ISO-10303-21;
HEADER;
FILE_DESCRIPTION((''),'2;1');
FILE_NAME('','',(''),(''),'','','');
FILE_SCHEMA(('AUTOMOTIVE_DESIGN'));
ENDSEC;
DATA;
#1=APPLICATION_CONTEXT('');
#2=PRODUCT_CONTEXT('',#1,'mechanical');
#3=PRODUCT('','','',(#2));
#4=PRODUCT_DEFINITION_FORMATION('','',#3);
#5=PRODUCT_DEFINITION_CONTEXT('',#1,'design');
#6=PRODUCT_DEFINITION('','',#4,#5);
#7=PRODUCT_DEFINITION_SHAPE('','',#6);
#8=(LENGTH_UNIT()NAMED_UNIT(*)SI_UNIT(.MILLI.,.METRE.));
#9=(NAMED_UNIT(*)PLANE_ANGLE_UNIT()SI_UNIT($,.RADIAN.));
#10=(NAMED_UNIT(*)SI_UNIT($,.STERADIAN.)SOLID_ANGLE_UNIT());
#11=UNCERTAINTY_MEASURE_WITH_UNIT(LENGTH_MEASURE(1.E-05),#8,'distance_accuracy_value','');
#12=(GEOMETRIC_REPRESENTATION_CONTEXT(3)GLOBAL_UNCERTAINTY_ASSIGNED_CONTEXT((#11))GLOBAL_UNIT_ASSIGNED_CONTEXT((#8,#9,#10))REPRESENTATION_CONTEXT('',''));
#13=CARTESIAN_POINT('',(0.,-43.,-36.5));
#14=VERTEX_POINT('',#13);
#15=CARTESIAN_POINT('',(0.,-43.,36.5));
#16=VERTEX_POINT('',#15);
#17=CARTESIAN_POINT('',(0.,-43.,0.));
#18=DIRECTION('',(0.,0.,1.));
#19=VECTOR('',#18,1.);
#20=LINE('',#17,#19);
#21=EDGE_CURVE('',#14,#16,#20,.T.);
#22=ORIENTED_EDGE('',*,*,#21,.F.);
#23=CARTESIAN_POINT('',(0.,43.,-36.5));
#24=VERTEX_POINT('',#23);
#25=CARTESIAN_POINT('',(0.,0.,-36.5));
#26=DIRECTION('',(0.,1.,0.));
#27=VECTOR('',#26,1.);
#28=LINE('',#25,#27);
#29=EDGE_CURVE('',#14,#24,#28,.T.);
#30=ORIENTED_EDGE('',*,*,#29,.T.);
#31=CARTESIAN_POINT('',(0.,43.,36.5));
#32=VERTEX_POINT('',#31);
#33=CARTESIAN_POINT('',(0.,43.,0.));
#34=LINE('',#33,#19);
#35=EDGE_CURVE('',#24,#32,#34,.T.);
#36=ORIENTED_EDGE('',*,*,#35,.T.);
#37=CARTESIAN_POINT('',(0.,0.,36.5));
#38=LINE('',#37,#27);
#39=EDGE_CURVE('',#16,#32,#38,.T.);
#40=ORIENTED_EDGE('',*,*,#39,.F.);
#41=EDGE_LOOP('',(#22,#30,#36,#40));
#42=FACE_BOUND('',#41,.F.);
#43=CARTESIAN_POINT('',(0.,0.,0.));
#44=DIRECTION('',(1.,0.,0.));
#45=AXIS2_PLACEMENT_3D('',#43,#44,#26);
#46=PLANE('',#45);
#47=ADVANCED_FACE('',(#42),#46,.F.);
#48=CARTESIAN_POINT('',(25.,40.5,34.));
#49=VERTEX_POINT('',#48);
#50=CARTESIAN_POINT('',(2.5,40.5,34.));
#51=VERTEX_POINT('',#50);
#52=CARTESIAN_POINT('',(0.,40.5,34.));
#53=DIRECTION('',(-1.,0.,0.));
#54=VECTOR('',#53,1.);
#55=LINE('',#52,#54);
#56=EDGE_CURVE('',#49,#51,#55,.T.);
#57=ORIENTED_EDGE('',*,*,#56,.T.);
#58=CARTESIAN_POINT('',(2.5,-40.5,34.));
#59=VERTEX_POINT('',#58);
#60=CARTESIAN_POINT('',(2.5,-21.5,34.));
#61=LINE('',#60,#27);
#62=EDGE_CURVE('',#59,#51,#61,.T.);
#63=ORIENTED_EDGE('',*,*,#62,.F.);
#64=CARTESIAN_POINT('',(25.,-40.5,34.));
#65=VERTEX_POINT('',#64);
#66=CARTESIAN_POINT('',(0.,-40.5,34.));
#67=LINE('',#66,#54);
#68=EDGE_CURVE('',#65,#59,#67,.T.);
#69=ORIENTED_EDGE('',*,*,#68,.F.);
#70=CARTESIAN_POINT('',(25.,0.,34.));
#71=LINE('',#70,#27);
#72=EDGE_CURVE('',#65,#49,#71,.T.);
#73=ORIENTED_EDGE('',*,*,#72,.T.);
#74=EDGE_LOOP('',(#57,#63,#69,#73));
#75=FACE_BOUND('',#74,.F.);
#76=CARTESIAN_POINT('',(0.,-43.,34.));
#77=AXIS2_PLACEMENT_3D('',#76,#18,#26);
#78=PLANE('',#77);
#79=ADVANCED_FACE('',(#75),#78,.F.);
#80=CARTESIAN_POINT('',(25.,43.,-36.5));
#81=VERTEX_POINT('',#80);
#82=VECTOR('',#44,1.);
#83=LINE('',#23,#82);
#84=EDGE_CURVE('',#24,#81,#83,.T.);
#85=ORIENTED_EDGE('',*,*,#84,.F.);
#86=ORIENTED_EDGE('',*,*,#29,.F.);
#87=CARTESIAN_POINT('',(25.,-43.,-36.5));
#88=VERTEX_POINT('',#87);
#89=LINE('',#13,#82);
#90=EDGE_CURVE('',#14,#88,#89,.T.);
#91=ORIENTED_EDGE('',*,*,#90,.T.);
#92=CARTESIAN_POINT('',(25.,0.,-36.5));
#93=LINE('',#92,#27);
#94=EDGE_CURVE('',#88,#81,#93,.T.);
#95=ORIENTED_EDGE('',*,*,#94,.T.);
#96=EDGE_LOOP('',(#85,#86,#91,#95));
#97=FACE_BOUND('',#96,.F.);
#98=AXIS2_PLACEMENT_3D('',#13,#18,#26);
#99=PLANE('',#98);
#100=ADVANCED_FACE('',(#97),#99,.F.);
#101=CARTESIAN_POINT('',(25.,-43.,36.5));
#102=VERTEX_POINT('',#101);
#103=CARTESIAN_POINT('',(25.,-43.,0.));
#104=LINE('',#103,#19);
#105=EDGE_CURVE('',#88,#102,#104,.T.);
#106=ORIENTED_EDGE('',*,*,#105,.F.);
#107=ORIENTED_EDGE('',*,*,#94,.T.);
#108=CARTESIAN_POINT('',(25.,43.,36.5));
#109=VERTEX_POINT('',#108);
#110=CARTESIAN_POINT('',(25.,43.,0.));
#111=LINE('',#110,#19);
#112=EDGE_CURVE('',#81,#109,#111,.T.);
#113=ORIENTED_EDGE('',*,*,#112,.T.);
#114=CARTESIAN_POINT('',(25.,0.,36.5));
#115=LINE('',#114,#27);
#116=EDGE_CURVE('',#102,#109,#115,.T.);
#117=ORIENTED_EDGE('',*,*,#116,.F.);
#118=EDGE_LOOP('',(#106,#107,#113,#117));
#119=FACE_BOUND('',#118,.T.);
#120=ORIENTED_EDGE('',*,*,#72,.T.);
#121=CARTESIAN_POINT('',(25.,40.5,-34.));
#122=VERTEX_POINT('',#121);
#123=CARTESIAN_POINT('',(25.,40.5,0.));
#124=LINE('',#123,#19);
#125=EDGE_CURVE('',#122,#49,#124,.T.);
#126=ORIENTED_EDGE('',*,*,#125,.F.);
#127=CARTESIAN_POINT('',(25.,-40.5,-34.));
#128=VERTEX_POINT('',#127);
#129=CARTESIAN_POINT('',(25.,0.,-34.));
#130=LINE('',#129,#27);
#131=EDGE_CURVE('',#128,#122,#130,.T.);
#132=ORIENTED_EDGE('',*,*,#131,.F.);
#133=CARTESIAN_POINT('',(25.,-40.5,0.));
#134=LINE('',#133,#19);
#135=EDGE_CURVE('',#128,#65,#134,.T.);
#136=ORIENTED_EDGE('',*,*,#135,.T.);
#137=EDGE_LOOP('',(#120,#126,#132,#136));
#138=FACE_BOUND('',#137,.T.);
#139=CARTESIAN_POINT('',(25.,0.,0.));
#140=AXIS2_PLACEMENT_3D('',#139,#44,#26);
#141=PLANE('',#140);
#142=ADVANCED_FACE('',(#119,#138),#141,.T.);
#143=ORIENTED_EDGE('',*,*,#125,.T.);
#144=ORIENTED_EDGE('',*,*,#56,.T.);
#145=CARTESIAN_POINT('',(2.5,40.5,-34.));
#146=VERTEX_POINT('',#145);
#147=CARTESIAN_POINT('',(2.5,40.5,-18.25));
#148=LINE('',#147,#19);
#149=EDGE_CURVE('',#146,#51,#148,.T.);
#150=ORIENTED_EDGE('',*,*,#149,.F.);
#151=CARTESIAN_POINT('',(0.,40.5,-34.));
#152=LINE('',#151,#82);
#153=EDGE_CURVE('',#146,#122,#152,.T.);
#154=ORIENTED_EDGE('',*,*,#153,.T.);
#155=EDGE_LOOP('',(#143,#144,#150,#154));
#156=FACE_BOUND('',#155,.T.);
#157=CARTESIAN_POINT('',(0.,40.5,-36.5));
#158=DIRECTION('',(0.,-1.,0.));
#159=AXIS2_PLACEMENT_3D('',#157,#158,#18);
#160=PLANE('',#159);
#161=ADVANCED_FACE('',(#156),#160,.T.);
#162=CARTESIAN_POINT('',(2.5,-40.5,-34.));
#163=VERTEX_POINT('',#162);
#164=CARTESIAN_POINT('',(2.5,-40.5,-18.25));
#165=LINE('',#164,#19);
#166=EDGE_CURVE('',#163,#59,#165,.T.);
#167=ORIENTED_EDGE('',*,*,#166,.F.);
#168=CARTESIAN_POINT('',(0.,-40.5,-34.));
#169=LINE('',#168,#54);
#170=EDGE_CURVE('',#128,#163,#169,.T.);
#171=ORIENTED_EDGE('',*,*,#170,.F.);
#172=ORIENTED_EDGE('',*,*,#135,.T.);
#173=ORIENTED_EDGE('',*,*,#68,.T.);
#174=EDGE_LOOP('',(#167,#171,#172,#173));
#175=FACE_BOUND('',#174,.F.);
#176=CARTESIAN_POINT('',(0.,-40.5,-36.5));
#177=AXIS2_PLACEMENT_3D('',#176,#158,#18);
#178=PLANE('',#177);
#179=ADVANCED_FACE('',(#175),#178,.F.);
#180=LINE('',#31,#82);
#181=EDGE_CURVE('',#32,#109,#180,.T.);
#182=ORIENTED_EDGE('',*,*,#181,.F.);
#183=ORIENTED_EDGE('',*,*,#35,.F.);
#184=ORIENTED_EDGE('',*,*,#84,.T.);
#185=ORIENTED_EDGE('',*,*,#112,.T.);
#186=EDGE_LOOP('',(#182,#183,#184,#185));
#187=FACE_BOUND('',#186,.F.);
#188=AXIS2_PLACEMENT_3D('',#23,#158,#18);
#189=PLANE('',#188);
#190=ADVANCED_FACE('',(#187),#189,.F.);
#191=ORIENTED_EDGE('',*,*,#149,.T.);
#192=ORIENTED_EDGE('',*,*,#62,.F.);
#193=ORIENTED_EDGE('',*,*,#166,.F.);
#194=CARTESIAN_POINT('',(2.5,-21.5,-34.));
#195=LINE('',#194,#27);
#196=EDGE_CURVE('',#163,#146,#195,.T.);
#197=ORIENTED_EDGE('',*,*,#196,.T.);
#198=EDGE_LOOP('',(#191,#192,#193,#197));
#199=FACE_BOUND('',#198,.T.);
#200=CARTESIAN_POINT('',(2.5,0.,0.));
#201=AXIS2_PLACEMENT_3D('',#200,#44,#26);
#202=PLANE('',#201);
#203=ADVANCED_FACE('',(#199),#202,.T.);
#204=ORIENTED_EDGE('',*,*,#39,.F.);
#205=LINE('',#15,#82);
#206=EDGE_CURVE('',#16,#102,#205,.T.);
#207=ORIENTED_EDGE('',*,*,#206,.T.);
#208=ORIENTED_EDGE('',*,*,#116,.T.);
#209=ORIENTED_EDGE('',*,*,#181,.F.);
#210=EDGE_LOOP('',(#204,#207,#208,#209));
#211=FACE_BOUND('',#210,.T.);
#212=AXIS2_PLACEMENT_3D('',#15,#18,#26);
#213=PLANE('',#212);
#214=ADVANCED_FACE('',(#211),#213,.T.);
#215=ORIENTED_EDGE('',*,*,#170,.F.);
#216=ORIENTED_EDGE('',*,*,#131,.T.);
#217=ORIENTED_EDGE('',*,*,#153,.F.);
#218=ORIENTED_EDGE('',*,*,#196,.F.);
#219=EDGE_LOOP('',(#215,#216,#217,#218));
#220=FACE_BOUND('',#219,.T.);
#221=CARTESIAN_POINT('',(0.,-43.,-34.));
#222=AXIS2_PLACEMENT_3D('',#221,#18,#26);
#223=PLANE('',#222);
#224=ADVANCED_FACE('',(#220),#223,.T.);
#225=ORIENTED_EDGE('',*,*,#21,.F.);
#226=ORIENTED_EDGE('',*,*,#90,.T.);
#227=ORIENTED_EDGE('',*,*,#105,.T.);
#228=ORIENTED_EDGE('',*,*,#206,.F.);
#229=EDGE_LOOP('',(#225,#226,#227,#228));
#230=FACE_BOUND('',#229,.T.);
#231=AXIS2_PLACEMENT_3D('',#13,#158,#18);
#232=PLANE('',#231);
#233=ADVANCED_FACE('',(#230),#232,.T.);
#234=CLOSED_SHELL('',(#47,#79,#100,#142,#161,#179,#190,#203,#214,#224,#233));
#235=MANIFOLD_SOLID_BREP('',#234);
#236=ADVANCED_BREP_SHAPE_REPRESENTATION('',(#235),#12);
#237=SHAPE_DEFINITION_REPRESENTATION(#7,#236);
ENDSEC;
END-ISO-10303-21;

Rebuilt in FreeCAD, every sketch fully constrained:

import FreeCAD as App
import Part
import Sketcher

V = App.Vector


def faces_at(feature, points):
    """Names of the faces that lie closest to the given points."""
    faces = feature.Shape.Faces
    near = lambda p: min(range(len(faces)), key=lambda i: faces[i].distToShape(Part.Vertex(*p))[0])
    return sorted({f"Face{near(p) + 1}" for p in points})

doc = App.newDocument("Part")
params = doc.addObject("Spreadsheet::Sheet", "Params")
for row, (alias, value) in enumerate([
    ("sketch1_width", "86 mm"),
    ("sketch1_height", "73 mm"),
    ("pad1_length", "25 mm"),
    ("thickness_wall", "2.5 mm"),
], start=1):
    params.set(f"A{row}", alias)
    params.set(f"B{row}", "=" + value)
    params.setAlias(f"B{row}", alias)

body = doc.addObject("PartDesign::Body", "Body")

sketch1 = doc.addObject("Sketcher::SketchObject", "Sketch")
body.addObject(sketch1)
sketch1.AttachmentSupport = (doc.YZ_Plane, [""])
sketch1.MapMode = "FlatFace"
sketch1.addGeometry([
    Part.LineSegment(V(-43, 36, 0), V(-43, -36, 0)),
    Part.LineSegment(V(-43, -36, 0), V(43, -36, 0)),
    Part.LineSegment(V(43, -36, 0), V(43, 36, 0)),
    Part.LineSegment(V(43, 36, 0), V(-43, 36, 0)),
], False)
sketch1.addConstraint([
    Sketcher.Constraint("Coincident", 0, 2, 1, 1),
    Sketcher.Constraint("Coincident", 1, 2, 2, 1),
    Sketcher.Constraint("Coincident", 2, 2, 3, 1),
    Sketcher.Constraint("Coincident", 3, 2, 0, 1),
    Sketcher.Constraint("Vertical", 0),
    Sketcher.Constraint("Horizontal", 1),
    Sketcher.Constraint("Vertical", 2),
    Sketcher.Constraint("Horizontal", 3),
    Sketcher.Constraint("Symmetric", 0, 2, 2, 2, -1, 1),
    Sketcher.Constraint("DistanceX", 1, 1, 1, 2, 86.0),
    Sketcher.Constraint("DistanceY", 0, 2, 0, 1, 73.0),
])
sketch1.setExpression("Constraints[9]", "Params.sketch1_width")
sketch1.setExpression("Constraints[10]", "Params.sketch1_height")
pad1 = doc.addObject("PartDesign::Pad", "Pad")
body.addObject(pad1)
pad1.Profile = sketch1
pad1.setExpression("Length", "Params.pad1_length")
doc.recompute()

thickness = doc.addObject("PartDesign::Thickness", "Thickness")
body.addObject(thickness)
thickness.Base = (pad1, faces_at(pad1, [(25, 0, 0)]))
thickness.setExpression("Value", "Params.thickness_wall")
thickness.Reversed = True
thickness.Join = "Arc"

doc.recompute()
